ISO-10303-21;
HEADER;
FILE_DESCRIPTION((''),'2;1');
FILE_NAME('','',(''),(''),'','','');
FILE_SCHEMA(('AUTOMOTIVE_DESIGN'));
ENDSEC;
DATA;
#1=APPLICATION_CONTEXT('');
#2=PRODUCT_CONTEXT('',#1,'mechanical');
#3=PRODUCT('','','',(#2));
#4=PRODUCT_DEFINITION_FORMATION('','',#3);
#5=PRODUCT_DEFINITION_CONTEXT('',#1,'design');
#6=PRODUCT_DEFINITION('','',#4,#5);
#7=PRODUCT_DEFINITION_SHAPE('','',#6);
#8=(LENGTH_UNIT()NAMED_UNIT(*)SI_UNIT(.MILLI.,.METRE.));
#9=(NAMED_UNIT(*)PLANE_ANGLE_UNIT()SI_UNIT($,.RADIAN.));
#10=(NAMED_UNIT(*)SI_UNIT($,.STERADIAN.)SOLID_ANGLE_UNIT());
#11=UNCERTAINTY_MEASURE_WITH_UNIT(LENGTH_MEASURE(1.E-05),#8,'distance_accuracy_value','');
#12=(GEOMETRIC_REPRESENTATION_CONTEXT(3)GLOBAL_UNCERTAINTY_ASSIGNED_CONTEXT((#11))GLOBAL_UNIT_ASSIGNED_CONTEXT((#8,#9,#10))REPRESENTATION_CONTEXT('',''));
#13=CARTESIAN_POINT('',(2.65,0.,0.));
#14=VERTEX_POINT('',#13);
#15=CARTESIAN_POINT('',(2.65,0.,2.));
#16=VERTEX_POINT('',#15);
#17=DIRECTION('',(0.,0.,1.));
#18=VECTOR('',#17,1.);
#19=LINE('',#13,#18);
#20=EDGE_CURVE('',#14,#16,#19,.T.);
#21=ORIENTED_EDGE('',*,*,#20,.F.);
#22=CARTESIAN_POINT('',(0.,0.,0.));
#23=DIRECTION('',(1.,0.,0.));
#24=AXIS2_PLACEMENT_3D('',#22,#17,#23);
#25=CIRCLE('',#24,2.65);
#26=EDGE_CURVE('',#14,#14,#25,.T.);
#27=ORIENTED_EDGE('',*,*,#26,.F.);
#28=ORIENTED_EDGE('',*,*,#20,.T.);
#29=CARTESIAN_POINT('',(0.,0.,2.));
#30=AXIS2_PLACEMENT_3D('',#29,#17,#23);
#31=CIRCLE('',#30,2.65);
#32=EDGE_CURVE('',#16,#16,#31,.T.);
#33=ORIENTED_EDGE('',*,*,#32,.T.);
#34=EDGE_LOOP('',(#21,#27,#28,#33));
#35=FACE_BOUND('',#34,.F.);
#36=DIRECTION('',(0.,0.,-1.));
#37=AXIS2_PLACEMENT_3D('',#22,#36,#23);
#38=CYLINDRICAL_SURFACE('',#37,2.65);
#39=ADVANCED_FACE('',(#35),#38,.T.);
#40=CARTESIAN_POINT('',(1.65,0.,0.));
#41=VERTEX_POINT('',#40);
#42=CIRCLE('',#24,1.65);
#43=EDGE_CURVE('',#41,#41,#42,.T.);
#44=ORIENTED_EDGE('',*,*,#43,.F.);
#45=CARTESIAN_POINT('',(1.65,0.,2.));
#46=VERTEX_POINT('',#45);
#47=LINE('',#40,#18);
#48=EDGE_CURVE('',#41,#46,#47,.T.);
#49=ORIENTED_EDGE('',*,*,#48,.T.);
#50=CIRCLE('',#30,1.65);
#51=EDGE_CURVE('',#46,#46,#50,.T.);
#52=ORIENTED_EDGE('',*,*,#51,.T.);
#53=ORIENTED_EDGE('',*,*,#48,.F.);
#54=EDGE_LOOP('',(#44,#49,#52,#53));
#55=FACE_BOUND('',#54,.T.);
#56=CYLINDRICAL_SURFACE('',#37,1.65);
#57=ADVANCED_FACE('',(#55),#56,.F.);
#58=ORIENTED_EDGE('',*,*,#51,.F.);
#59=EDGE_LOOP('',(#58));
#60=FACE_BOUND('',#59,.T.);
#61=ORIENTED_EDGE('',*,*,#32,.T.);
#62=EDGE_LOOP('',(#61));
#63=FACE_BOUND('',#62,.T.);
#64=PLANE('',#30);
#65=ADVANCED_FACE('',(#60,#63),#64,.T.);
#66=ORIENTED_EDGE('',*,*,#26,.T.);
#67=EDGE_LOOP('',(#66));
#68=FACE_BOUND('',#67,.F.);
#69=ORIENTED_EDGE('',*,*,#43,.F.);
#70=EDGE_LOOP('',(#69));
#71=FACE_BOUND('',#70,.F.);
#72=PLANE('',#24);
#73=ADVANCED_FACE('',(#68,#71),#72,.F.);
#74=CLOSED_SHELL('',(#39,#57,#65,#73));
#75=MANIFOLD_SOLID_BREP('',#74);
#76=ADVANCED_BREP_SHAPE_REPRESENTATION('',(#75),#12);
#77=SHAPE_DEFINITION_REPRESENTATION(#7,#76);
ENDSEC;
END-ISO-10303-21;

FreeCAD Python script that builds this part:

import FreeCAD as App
import Part
import Sketcher
Q = App.Units.Quantity

doc = App.newDocument("Part")
body = doc.addObject("PartDesign::Body", "Body")

# Sketch on XY plane
sketch1 = doc.addObject("Sketcher::SketchObject", "Sketch")
body.addObject(sketch1)
sketch1.AttachmentSupport = (doc.XY_Plane, [""])
sketch1.MapMode = "FlatFace"
sketch1.addGeometry(Part.Circle(App.Vector(0, 0, 0), App.Vector(0, 0, 1), 2.6), False)
sketch1.addGeometry(Part.Circle(App.Vector(0, 0, 0), App.Vector(0, 0, 1), 1.6), False)
sketch1.addConstraint(Sketcher.Constraint("Coincident", 0, 3, -1, 1))
sketch1.addConstraint(Sketcher.Constraint("Coincident", 1, 3, -1, 1))
sketch1.addConstraint(Sketcher.Constraint("Diameter", 1, Q("3.3 mm")))
sketch1.addConstraint(Sketcher.Constraint("Diameter", 0, Q("5.3 mm")))
pad1 = doc.addObject("PartDesign::Pad", "Pad")
body.addObject(pad1)
pad1.Profile = sketch1
pad1.Length = 2

doc.recompute()
